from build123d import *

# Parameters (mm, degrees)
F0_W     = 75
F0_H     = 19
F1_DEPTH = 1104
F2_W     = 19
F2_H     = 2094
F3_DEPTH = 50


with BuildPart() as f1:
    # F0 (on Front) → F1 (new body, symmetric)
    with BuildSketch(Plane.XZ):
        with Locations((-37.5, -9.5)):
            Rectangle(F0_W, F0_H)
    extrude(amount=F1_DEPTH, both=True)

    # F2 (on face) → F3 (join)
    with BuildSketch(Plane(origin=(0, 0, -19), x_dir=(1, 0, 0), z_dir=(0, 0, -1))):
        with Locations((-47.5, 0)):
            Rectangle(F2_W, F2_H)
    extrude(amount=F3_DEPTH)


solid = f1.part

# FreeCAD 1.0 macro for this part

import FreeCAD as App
import Part
import Sketcher
from FreeCAD import Vector


def add_polygon(sketch, points):
    """Adds a closed chain of lines whose ends are joined by coincident constraints."""
    first, n = sketch.GeometryCount, len(points)
    for a, b in zip(points, points[1:] + points[:1]):
        sketch.addGeometry(Part.LineSegment(App.Vector(*a, 0), App.Vector(*b, 0)), False)
    for i in range(n):
        sketch.addConstraint(Sketcher.Constraint("Coincident", first + i, 2, first + (i + 1) % n, 1))

doc = App.newDocument("Part")
body = doc.addObject("PartDesign::Body", "Body")

sketch1 = doc.addObject("Sketcher::SketchObject", "Sketch")
body.addObject(sketch1)
sketch1.AttachmentSupport = (doc.XZ_Plane, [""])
sketch1.MapMode = "FlatFace"
add_polygon(sketch1, [(-75, 0), (-75, -19), (0, -19), (0, 0)])
sketch1.addConstraint([
    Sketcher.Constraint("Vertical", 0),
    Sketcher.Constraint("Horizontal", 1),
    Sketcher.Constraint("Vertical", 2),
    Sketcher.Constraint("Horizontal", 3),
    Sketcher.Constraint("Coincident", 2, 2, -1, 1),
    Sketcher.Constraint("DistanceX", 1, 1, 1, 2, 75.0),
    Sketcher.Constraint("DistanceY", 0, 2, 0, 1, 19.0),
])
pad1 = doc.addObject("PartDesign::Pad", "Pad")
body.addObject(pad1)
pad1.Profile = sketch1
pad1.Length = 2208
pad1.Midplane = True

sketch2 = doc.addObject("Sketcher::SketchObject", "Sketch001")
body.addObject(sketch2)
sketch2.AttachmentSupport = (doc.XY_Plane, [""])
sketch2.MapMode = "FlatFace"
sketch2.AttachmentOffset = App.Placement(Vector(0, 0, -19), App.Rotation())
add_polygon(sketch2, [(-57, -1047), (-57, 1047), (-38, 1047), (-38, -1047)])
sketch2.addConstraint([
    Sketcher.Constraint("Vertical", 0),
    Sketcher.Constraint("Horizontal", 1),
    Sketcher.Constraint("Vertical", 2),
    Sketcher.Constraint("Horizontal", 3),
    Sketcher.Constraint("DistanceX", 1, 1, 1, 2, 19.0),
    Sketcher.Constraint("DistanceY", 0, 1, 0, 2, 2094.0),
    Sketcher.Constraint("DistanceX", 0, 2, -1, 1, 57.0),
    Sketcher.Constraint("DistanceY", -1, 1, 0, 2, 1047.0),
])
pad2 = doc.addObject("PartDesign::Pad", "Pad001")
body.addObject(pad2)
pad2.Profile = sketch2
pad2.Length = 50
pad2.Reversed = True

doc.recompute()
